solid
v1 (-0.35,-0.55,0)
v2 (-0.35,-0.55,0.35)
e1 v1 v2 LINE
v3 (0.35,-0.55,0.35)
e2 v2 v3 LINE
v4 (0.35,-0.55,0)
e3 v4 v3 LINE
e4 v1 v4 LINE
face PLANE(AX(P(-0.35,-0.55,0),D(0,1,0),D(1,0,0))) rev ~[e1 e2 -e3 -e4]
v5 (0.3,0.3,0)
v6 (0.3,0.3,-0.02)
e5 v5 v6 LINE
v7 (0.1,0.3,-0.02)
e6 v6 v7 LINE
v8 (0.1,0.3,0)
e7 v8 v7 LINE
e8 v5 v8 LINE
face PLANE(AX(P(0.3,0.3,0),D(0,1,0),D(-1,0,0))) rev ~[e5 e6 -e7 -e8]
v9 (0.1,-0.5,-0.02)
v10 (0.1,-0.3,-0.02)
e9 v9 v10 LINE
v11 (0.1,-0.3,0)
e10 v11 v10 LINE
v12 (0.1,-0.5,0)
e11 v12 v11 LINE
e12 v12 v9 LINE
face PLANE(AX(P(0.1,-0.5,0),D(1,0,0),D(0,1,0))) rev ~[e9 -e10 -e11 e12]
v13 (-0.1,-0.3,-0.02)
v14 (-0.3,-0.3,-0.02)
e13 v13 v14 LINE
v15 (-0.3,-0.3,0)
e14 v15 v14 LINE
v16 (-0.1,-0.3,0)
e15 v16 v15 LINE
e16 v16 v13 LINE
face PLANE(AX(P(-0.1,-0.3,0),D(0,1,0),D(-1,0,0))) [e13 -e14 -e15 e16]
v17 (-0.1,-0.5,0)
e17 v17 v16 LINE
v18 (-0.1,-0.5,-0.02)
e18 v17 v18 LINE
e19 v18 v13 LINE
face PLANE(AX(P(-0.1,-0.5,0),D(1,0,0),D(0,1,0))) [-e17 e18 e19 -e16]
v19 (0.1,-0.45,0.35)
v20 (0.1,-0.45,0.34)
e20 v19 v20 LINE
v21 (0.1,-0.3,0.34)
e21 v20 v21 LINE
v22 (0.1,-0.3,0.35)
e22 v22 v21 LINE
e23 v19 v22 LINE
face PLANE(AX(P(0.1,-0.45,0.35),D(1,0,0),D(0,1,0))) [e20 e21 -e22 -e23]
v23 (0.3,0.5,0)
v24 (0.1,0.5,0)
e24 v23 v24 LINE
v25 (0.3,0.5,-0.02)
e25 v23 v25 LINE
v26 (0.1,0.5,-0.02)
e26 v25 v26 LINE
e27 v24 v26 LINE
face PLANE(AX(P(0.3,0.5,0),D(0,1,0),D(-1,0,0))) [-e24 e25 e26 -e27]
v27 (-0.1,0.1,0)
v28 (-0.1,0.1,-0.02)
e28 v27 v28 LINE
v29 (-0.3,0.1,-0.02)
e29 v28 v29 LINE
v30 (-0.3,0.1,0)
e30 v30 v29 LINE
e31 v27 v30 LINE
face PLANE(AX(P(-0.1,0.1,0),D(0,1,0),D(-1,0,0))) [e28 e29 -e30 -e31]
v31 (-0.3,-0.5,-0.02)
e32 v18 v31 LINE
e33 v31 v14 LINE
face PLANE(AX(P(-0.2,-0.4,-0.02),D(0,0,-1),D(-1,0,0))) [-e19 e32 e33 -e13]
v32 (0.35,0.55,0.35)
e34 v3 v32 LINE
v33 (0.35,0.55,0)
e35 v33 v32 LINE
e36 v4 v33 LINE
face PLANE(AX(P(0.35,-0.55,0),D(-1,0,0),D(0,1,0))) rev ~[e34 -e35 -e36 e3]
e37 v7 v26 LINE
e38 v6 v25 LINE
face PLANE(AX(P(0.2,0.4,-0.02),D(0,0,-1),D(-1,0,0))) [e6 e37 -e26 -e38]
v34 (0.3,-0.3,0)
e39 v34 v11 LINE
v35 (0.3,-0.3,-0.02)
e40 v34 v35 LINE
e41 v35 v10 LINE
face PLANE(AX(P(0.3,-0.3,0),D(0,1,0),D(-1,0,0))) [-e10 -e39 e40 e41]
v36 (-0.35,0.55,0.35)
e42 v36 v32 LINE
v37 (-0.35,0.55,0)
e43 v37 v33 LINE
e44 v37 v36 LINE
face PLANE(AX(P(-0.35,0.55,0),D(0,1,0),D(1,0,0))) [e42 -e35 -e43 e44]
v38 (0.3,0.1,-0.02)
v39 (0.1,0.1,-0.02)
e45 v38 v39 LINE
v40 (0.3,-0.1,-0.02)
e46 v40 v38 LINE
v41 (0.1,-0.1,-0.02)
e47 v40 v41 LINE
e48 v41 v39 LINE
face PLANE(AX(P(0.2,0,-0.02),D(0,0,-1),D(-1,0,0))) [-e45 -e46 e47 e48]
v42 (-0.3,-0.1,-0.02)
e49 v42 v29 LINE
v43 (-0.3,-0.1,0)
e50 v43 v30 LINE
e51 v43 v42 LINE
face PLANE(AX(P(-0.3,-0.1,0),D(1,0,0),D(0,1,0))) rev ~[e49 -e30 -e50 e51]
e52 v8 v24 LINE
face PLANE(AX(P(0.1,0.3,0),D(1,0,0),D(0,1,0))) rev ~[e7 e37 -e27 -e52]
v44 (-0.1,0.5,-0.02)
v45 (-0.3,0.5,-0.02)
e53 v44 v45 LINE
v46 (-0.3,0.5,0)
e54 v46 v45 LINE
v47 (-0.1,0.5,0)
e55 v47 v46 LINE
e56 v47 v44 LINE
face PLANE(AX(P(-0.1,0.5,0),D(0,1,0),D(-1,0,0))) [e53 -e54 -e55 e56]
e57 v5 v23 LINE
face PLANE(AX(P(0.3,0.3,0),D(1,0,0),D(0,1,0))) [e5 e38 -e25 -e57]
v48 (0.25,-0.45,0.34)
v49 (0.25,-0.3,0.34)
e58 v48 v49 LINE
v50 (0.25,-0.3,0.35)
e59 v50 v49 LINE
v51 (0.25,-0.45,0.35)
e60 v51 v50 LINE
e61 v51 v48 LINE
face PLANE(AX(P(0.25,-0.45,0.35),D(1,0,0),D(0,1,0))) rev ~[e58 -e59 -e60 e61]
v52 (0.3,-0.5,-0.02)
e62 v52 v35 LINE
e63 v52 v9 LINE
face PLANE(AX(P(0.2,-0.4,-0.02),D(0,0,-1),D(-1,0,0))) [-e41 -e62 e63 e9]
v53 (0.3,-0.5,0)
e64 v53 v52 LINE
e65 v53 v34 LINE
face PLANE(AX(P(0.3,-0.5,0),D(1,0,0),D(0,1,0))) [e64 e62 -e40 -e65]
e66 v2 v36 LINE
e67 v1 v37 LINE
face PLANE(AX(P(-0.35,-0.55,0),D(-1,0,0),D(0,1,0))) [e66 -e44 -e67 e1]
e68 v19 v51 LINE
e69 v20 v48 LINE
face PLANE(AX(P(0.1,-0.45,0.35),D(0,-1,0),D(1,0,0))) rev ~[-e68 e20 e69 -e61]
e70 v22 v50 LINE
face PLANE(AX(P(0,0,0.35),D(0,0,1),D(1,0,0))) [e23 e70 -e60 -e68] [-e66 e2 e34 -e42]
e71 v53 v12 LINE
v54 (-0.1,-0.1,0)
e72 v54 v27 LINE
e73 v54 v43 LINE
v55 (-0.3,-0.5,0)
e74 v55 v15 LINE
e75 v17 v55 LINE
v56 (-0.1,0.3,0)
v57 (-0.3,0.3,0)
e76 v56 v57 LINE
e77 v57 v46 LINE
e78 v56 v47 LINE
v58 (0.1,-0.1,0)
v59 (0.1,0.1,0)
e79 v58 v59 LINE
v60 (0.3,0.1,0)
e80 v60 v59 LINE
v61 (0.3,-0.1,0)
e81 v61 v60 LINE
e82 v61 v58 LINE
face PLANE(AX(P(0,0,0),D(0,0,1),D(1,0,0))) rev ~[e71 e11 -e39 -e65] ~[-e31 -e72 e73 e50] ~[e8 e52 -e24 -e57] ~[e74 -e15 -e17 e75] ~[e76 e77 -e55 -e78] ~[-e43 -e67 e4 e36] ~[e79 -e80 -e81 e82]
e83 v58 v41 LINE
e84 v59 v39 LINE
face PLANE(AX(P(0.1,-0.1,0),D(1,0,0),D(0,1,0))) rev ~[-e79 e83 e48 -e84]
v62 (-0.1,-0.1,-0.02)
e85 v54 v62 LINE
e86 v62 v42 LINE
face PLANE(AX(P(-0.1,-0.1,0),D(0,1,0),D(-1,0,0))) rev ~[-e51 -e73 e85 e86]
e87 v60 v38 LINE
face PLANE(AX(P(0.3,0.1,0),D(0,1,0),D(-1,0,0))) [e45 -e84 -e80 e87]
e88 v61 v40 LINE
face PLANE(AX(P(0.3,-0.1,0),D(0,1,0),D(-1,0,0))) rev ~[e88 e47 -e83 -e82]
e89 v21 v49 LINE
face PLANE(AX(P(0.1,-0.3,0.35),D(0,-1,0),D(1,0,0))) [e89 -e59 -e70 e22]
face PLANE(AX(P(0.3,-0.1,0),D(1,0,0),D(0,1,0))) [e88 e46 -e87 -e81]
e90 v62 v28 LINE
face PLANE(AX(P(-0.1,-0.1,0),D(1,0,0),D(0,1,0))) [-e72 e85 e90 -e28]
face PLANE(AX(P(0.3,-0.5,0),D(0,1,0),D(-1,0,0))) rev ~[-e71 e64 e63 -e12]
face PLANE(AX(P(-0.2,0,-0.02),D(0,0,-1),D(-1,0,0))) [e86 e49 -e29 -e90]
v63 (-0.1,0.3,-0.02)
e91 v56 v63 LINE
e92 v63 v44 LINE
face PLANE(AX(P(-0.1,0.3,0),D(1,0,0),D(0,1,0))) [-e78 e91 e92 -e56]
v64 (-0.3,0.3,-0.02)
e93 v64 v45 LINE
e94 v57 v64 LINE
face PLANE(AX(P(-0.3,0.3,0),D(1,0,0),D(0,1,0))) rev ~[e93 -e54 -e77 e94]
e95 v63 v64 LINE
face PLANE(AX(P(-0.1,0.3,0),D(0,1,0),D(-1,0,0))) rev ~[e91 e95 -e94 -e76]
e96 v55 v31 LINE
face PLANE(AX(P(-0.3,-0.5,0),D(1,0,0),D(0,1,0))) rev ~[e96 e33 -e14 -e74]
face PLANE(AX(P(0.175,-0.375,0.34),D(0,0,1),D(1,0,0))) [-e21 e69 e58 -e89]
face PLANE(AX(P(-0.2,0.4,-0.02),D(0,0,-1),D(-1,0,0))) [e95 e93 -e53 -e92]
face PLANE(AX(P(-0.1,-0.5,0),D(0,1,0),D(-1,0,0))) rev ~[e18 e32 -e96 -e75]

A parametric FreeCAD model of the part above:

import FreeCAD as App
import Part
import Sketcher

V = App.Vector
Q = App.Units.Quantity


def add_polygon(sketch, points):
    """Adds a closed chain of lines whose ends are joined by coincident constraints."""
    first, n = sketch.GeometryCount, len(points)
    for a, b in zip(points, points[1:] + points[:1]):
        sketch.addGeometry(Part.LineSegment(App.Vector(*a, 0), App.Vector(*b, 0)), False)
    for i in range(n):
        sketch.addConstraint(Sketcher.Constraint("Coincident", first + i, 2, first + (i + 1) % n, 1))

doc = App.newDocument("Part")
body = doc.addObject("PartDesign::Body", "Body")

sketch1 = body.newObject("Sketcher::SketchObject", "Sketch")
sketch1.AttachmentSupport = (doc.getObject("XY_Plane"), [""])
sketch1.MapMode = "FlatFace"
add_polygon(sketch1, [(-0.3, 0.6), (-0.3, -0.6), (0.3, -0.6), (0.3, 0.6)])
sketch1.addConstraint([
    Sketcher.Constraint("Vertical", 0),
    Sketcher.Constraint("Horizontal", 1),
    Sketcher.Constraint("Vertical", 2),
    Sketcher.Constraint("Horizontal", 3),
    Sketcher.Constraint("Symmetric", 0, 2, 2, 2, -1, 1),
    Sketcher.Constraint("DistanceX", 1, 1, 1, 2, Q("0.7 mm")),
    Sketcher.Constraint("DistanceY", 0, 2, 0, 1, Q("1.1 mm")),
])
pad1 = body.newObject("PartDesign::Pad", "Pad")
pad1.Profile = sketch1
pad1.Length = 0.35

sketch2 = body.newObject("Sketcher::SketchObject", "Sketch001")
sketch2.AttachmentSupport = (doc.getObject("XY_Plane"), [""])
sketch2.MapMode = "FlatFace"
add_polygon(sketch2, [(0.3, 0.5), (0.3, 0.3), (0.1, 0.3), (0.1, 0.5)])
add_polygon(sketch2, [(0.3, -0.3), (0.3, -0.5), (0.1, -0.5), (0.1, -0.3)])
add_polygon(sketch2, [(0.3, 0.1), (0.3, -0.1), (0.1, -0.1), (0.1, 0.1)])
add_polygon(sketch2, [(-0.1, -0.3), (-0.1, -0.5), (-0.3, -0.5), (-0.3, -0.3)])
add_polygon(sketch2, [(-0.1, 0.1), (-0.1, -0.1), (-0.3, -0.1), (-0.3, 0.1)])
add_polygon(sketch2, [(-0.1, 0.5), (-0.1, 0.3), (-0.3, 0.3), (-0.3, 0.5)])
sketch2.addConstraint([
    Sketcher.Constraint("Vertical", 0),
    Sketcher.Constraint("Horizontal", 1),
    Sketcher.Constraint("Vertical", 2),
    Sketcher.Constraint("Horizontal", 3),
    Sketcher.Constraint("Vertical", 4),
    Sketcher.Constraint("Horizontal", 5),
    Sketcher.Constraint("Vertical", 6),
    Sketcher.Constraint("Horizontal", 7),
    Sketcher.Constraint("Vertical", 8),
    Sketcher.Constraint("Horizontal", 9),
    Sketcher.Constraint("Vertical", 10),
    Sketcher.Constraint("Horizontal", 11),
    Sketcher.Constraint("Vertical", 12),
    Sketcher.Constraint("Horizontal", 13),
    Sketcher.Constraint("Vertical", 14),
    Sketcher.Constraint("Horizontal", 15),
    Sketcher.Constraint("Vertical", 16),
    Sketcher.Constraint("Horizontal", 17),
    Sketcher.Constraint("Vertical", 18),
    Sketcher.Constraint("Horizontal", 19),
    Sketcher.Constraint("Vertical", 20),
    Sketcher.Constraint("Horizontal", 21),
    Sketcher.Constraint("Vertical", 22),
    Sketcher.Constraint("Horizontal", 23),
    Sketcher.Constraint("Symmetric", 2, 2, 12, 2, -1, 1),
    Sketcher.Constraint("Symmetric", 0, 2, 14, 2, -1, 1),
    Sketcher.Constraint("Symmetric", 10, 2, 16, 2, -1, 1),
    Sketcher.Constraint("Symmetric", 8, 2, 18, 2, -1, 1),
    Sketcher.Constraint("Symmetric", 6, 2, 20, 2, -1, 1),
    Sketcher.Constraint("Symmetric", 4, 2, 22, 2, -1, 1),
    Sketcher.Constraint("Symmetric", 5, 2, 12, 2, -2),
    Sketcher.Constraint("Symmetric", 7, 2, 14, 2, -2),
    Sketcher.Constraint("Horizontal", 9, 2, 16, 2),
    Sketcher.Constraint("Vertical", 7, 2, 8, 2),
    Sketcher.Constraint("Vertical", 6, 2, 9, 2),
    Sketcher.Constraint("Equal", 23, 0),
    Sketcher.Constraint("Equal", 6, 8),
    Sketcher.Constraint("DistanceX", 1, 2, 1, 1, Q("0.2 mm")),
    Sketcher.Constraint("DistanceY", 4, 2, 3, 2, Q("1 mm")),
    Sketcher.Constraint("DistanceX", -1, 1, 0, 2, Q("0.3 mm")),
])
pad2 = body.newObject("PartDesign::Pad", "Pad001")
pad2.Profile = sketch2
pad2.Length = 0.02
pad2.Reversed = True

sketch3 = body.newObject("Sketcher::SketchObject", "Sketch002")
sketch3.AttachmentSupport = (doc.getObject("XY_Plane"), [""])
sketch3.MapMode = "FlatFace"
sketch3.AttachmentOffset = App.Placement(V(0, 0, 0.35), App.Rotation())
add_polygon(sketch3, [(0.1, -0.3), (0.1, -0.45), (0.25, -0.45), (0.25, -0.3)])
sketch3.addConstraint([
    Sketcher.Constraint("Vertical", 0),
    Sketcher.Constraint("Horizontal", 1),
    Sketcher.Constraint("Vertical", 2),
    Sketcher.Constraint("Horizontal", 3),
    Sketcher.Constraint("Equal", 3, 0),
    Sketcher.Constraint("DistanceX", 1, 1, 1, 2, Q("0.15 mm")),
    Sketcher.Constraint("DistanceX", -1, 1, 0, 2, Q("0.1 mm")),
    Sketcher.Constraint("DistanceY", 2, 2, -1, 1, Q("0.3 mm")),
])
pocket1 = body.newObject("PartDesign::Pocket", "Pocket")
pocket1.Profile = sketch3
pocket1.Length = 0.01

doc.recompute()
